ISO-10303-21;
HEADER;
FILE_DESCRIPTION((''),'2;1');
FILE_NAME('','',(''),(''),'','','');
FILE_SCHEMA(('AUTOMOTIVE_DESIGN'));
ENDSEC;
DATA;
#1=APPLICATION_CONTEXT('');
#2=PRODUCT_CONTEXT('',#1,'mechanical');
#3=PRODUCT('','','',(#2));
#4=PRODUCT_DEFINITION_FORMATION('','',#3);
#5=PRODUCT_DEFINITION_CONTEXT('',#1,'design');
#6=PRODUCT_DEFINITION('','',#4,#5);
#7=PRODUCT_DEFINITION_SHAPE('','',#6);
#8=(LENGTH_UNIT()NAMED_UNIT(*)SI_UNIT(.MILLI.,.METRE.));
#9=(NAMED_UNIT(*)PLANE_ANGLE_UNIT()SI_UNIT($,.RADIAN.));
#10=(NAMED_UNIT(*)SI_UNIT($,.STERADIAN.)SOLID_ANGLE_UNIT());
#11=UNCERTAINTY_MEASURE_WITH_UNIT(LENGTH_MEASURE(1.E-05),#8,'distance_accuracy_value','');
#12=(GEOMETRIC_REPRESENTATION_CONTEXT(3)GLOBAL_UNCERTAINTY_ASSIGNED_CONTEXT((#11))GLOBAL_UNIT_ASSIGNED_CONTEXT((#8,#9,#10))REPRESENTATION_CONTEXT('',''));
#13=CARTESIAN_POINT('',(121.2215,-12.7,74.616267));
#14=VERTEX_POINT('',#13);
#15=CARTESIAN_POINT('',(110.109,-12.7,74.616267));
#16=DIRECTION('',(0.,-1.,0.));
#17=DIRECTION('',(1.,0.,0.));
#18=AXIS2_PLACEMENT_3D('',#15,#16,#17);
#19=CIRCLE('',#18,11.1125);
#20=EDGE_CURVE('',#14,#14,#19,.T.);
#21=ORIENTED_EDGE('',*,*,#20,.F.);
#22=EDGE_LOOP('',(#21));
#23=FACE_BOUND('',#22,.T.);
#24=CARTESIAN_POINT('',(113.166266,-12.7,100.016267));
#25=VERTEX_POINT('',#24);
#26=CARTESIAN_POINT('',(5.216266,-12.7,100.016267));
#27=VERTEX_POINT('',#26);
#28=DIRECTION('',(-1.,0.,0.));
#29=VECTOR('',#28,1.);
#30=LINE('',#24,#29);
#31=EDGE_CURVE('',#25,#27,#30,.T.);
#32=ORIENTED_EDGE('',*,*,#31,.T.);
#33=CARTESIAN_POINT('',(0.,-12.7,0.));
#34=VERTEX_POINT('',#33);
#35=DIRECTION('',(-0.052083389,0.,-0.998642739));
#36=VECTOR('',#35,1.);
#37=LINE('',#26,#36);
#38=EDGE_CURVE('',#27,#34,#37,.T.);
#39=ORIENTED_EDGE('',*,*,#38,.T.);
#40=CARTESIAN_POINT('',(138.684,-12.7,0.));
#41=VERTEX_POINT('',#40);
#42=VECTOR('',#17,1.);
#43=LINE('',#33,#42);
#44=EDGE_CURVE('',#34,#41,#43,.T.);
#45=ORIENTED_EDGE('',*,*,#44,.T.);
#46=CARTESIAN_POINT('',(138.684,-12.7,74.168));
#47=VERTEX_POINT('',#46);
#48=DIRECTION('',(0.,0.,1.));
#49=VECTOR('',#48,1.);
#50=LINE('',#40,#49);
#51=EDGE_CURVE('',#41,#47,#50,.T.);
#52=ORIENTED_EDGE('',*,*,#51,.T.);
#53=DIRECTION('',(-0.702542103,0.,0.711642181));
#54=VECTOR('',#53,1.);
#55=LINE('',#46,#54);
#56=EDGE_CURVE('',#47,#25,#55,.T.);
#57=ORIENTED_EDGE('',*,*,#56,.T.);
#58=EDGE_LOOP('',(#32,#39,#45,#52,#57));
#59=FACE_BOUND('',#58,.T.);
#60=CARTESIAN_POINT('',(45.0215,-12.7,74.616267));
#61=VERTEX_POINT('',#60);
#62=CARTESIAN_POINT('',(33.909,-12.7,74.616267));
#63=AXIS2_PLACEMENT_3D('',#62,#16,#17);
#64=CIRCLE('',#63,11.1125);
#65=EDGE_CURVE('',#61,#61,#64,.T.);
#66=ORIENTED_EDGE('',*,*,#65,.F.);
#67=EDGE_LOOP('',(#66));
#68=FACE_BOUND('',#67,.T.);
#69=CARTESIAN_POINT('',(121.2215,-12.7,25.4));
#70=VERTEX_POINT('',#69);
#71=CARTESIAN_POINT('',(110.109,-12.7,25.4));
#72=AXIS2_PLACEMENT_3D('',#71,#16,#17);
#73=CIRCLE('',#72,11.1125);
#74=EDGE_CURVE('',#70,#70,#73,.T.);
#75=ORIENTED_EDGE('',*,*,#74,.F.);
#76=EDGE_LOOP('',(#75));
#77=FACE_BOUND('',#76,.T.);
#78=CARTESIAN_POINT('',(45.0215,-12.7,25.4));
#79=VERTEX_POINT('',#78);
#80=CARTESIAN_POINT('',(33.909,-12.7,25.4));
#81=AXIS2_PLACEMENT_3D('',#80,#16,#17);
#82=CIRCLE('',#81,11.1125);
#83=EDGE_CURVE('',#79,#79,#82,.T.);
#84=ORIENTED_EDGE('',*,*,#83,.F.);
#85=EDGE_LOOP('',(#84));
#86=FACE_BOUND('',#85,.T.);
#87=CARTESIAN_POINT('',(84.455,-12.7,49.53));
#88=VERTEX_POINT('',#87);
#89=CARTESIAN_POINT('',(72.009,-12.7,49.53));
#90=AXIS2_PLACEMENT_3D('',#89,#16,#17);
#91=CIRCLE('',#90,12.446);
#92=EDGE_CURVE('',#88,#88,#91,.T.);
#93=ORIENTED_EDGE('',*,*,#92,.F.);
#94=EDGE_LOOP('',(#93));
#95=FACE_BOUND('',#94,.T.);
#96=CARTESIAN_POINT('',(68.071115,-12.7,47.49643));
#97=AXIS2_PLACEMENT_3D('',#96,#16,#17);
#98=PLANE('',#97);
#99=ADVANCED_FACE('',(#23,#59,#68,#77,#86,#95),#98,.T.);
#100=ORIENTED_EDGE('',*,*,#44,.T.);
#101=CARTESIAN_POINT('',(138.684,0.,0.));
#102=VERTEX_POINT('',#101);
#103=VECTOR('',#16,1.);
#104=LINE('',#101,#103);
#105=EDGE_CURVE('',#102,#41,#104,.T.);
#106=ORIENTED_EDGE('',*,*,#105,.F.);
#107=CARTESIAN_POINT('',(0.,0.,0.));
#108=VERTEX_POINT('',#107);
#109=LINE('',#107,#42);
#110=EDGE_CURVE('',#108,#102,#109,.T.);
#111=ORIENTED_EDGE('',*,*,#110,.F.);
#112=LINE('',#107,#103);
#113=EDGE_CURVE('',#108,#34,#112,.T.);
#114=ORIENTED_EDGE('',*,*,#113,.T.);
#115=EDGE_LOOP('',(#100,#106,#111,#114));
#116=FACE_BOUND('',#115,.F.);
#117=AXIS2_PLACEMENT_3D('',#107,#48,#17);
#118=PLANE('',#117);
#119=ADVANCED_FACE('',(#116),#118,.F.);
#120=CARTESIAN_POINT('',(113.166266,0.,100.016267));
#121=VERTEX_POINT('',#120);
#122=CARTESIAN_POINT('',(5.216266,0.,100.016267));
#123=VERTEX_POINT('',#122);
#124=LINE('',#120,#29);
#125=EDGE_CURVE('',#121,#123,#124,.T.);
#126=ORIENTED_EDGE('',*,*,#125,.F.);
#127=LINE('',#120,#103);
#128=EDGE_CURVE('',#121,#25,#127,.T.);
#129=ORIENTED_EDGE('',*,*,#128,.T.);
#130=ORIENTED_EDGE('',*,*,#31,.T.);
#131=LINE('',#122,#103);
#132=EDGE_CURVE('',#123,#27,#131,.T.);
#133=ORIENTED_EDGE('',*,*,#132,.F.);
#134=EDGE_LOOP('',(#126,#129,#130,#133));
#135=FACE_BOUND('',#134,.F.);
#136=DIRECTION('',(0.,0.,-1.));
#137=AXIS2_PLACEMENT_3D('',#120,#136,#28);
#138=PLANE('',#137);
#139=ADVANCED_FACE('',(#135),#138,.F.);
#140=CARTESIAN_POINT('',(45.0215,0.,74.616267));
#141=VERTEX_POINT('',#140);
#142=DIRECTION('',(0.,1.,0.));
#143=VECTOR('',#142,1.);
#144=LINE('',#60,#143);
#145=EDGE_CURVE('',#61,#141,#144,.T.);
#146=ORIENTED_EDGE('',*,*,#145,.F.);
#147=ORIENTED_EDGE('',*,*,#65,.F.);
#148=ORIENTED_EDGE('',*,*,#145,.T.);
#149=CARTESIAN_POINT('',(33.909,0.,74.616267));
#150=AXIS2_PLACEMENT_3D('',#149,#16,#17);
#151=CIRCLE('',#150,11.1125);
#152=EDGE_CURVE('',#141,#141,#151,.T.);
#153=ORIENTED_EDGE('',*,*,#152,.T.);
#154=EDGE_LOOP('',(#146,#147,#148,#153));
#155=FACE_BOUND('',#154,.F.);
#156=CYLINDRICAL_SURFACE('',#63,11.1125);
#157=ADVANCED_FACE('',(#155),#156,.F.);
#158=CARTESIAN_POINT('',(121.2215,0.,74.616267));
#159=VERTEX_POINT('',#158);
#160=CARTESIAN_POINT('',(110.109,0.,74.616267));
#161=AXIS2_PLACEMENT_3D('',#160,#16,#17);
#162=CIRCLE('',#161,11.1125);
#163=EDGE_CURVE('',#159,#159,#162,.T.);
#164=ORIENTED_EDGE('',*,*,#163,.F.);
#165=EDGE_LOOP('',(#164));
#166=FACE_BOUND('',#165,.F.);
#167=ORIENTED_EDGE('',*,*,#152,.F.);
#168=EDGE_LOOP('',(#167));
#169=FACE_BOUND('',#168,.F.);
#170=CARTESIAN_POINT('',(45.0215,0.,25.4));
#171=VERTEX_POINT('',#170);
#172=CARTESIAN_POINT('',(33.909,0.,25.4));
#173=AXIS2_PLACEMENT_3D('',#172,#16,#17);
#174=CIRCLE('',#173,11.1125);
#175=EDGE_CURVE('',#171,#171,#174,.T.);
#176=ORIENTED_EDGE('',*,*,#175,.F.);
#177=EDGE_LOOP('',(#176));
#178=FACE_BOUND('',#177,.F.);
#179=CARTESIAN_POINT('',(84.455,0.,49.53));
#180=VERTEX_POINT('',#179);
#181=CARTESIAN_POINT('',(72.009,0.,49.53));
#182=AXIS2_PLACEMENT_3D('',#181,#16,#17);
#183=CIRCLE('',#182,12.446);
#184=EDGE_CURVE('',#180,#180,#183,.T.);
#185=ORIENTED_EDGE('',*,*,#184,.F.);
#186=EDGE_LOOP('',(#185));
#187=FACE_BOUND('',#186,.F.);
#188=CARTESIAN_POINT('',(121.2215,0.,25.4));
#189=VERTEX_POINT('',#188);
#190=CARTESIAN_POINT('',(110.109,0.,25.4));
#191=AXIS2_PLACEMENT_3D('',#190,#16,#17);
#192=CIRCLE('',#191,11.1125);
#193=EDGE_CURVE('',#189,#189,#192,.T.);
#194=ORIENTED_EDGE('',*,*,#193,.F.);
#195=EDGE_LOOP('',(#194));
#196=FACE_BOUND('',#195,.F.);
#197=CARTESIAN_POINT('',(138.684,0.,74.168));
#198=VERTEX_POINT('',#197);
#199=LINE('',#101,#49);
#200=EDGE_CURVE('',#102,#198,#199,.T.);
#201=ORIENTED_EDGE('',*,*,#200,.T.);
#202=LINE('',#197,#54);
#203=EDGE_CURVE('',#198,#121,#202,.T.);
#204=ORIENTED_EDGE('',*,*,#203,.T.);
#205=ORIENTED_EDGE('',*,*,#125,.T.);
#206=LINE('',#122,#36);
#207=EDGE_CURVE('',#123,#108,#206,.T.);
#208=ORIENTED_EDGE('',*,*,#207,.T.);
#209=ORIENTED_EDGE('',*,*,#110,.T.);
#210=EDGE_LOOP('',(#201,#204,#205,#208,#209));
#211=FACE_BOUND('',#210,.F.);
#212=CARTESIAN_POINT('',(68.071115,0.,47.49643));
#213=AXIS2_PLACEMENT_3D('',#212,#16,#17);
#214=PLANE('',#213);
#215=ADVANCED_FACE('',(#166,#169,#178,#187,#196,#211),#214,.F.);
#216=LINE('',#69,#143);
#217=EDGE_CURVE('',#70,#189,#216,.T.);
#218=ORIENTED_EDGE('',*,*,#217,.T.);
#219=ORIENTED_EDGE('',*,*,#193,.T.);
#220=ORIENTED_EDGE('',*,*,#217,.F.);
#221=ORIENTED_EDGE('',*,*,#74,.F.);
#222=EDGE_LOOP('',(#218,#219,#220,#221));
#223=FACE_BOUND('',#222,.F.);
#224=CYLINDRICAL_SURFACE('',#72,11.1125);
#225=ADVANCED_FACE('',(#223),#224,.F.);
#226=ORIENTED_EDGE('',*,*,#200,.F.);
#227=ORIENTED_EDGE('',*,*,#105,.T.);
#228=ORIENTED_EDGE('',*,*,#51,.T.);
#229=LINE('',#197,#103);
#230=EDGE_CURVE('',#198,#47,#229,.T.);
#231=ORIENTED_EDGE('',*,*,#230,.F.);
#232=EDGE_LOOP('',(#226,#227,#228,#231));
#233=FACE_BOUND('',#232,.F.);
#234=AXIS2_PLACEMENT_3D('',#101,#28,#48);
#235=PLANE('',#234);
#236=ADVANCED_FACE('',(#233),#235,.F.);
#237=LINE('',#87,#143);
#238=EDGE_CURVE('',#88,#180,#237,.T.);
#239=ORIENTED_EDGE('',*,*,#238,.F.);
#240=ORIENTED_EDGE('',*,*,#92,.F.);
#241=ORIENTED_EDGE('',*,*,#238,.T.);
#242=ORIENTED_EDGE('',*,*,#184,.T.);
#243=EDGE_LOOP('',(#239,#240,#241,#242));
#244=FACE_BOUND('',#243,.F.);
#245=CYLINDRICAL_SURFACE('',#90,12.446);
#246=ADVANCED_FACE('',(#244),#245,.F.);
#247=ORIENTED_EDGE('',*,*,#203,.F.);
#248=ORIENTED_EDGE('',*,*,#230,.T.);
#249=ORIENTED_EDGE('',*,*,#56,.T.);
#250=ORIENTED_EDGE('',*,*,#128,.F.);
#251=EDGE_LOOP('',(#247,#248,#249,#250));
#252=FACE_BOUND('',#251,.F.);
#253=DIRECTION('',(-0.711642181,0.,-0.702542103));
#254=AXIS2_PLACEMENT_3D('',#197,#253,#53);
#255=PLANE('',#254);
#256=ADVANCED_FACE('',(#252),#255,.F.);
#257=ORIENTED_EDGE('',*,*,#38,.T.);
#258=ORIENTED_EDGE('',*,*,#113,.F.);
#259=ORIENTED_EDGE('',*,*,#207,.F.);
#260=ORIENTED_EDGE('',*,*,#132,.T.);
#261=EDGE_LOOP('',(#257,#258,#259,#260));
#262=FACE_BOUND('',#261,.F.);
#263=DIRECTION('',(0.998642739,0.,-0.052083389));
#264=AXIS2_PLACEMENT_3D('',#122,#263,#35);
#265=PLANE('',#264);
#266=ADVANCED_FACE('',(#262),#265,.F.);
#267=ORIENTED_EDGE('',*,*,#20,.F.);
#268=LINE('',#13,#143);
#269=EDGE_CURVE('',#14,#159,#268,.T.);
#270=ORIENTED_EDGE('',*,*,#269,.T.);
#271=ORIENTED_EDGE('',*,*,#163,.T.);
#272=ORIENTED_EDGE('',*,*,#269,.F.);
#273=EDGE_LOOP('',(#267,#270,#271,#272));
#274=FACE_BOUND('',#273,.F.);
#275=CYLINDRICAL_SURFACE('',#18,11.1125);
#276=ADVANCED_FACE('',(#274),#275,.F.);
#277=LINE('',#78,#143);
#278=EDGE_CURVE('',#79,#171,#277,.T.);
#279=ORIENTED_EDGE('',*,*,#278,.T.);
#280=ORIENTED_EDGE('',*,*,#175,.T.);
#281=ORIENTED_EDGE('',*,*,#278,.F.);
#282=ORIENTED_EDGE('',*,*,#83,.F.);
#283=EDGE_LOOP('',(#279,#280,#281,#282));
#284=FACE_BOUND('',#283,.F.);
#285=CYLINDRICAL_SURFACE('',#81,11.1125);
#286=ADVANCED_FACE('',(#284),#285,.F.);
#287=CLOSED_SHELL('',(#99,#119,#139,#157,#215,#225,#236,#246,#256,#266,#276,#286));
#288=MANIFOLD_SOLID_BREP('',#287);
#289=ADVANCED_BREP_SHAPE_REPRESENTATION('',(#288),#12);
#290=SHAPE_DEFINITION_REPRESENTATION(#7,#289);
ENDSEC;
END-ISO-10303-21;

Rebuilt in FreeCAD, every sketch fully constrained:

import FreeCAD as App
import Part
import Sketcher
from FreeCAD import Vector
Q = App.Units.Quantity

doc = App.newDocument("Part")
body = doc.addObject("PartDesign::Body", "Body")

# Sketch on XZ plane
sketch1 = body.newObject("Sketcher::SketchObject", "Sketch")
sketch1.AttachmentSupport = (doc.getObject("XZ_Plane"), [""])
sketch1.MapMode = "FlatFace"
sketch1.addGeometry([
    Part.LineSegment(Vector(5.216266, 100.016267, 0), Vector(0, 0, 0)),  # 0
    Part.LineSegment(Vector(0, 0, 0), Vector(138.684, 0, 0)),  # 1
    Part.LineSegment(Vector(138.684, 0, 0), Vector(138.684, 74.168, 0)),  # 2
    Part.LineSegment(Vector(138.684, 74.168, 0), Vector(113.166266, 100.016267, 0)),  # 3
    Part.LineSegment(Vector(113.166266, 100.016267, 0), Vector(5.216266, 100.016267, 0)),  # 4
], False)
sketch1.addConstraint([
    Sketcher.Constraint("Coincident", 0, 2, 1, 1),
    Sketcher.Constraint("Coincident", 1, 2, 2, 1),
    Sketcher.Constraint("Coincident", 2, 2, 3, 1),
    Sketcher.Constraint("Coincident", 3, 2, 4, 1),
    Sketcher.Constraint("Coincident", 4, 2, 0, 1),
    Sketcher.Constraint("Horizontal", 1),
    Sketcher.Constraint("Vertical", 2),
    Sketcher.Constraint("Horizontal", 4),
    Sketcher.Constraint("Coincident", 0, 2, -1, 1),
    Sketcher.Constraint("DistanceX", 1, 1, 1, 2, Q("5.46 in")),
    Sketcher.Constraint("DistanceX", 4, 2, 4, 1, Q("4.25 in")),
    Sketcher.Constraint("DistanceY", 2, 1, 2, 2, Q("2.92 in")),
    Sketcher.Constraint("Distance", 3, Q("1.43 in")),
    Sketcher.Constraint("Distance", 0, Q("3.943 in")),
])
pad1 = body.newObject("PartDesign::Pad", "Pad")
pad1.Profile = sketch1
pad1.Length = Q("0.5 in")

# Sketch on XZ plane
sketch2 = body.newObject("Sketcher::SketchObject", "Sketch001")
sketch2.AttachmentSupport = (doc.getObject("XZ_Plane"), [""])
sketch2.MapMode = "FlatFace"
sketch2.AttachmentOffset = App.Placement(Vector(0, 0, 0.5 * 25.4), App.Rotation())
sketch2.addGeometry([
    Part.Circle(Vector(72.009, 49.53, 0), Vector(0, 0, 1), 12.446),  # 0
    Part.Circle(Vector(33.909, 25.4, 0), Vector(0, 0, 1), 11.1125),  # 1
    Part.Circle(Vector(33.909, 74.616267, 0), Vector(0, 0, 1), 11.1125),  # 2
    Part.Circle(Vector(110.109, 74.616267, 0), Vector(0, 0, 1), 11.1125),  # 3
    Part.Circle(Vector(110.109, 25.4, 0), Vector(0, 0, 1), 11.1125),  # 4
], False)
sketch2.addConstraint([
    Sketcher.Constraint("Equal", 1, 2),
    Sketcher.Constraint("Equal", 2, 3),
    Sketcher.Constraint("Equal", 3, 4),
    Sketcher.Constraint("Horizontal", 2, 3, 3, 3),
    Sketcher.Constraint("Horizontal", 1, 3, 4, 3),
    Sketcher.Constraint("Vertical", 1, 3, 2, 3),
    Sketcher.Constraint("Vertical", 3, 3, 4, 3),
    Sketcher.Constraint("Diameter", 0, Q("0.98 in")),
    Sketcher.Constraint("Diameter", 1, Q("0.875 in")),
    Sketcher.Constraint("DistanceY", -1, 1, 1, 3, Q("1 in")),
    Sketcher.Constraint("DistanceX", 2, 3, 3, 3, Q("3 in")),
    Sketcher.Constraint("DistanceX", 1, 3, 0, 3, Q("1.5 in")),
    Sketcher.Constraint("DistanceY", -1, 1, 0, 3, Q("1.95 in")),
    Sketcher.Constraint("DistanceX", -1, 1, 0, 3, Q("2.835 in")),
    Sketcher.Constraint("DistanceY", -1, 1, 2, 3, 74.616267),
])
pocket1 = body.newObject("PartDesign::Pocket", "Pocket")
pocket1.Profile = sketch2
pocket1.Length = Q("1 in")

doc.recompute()
